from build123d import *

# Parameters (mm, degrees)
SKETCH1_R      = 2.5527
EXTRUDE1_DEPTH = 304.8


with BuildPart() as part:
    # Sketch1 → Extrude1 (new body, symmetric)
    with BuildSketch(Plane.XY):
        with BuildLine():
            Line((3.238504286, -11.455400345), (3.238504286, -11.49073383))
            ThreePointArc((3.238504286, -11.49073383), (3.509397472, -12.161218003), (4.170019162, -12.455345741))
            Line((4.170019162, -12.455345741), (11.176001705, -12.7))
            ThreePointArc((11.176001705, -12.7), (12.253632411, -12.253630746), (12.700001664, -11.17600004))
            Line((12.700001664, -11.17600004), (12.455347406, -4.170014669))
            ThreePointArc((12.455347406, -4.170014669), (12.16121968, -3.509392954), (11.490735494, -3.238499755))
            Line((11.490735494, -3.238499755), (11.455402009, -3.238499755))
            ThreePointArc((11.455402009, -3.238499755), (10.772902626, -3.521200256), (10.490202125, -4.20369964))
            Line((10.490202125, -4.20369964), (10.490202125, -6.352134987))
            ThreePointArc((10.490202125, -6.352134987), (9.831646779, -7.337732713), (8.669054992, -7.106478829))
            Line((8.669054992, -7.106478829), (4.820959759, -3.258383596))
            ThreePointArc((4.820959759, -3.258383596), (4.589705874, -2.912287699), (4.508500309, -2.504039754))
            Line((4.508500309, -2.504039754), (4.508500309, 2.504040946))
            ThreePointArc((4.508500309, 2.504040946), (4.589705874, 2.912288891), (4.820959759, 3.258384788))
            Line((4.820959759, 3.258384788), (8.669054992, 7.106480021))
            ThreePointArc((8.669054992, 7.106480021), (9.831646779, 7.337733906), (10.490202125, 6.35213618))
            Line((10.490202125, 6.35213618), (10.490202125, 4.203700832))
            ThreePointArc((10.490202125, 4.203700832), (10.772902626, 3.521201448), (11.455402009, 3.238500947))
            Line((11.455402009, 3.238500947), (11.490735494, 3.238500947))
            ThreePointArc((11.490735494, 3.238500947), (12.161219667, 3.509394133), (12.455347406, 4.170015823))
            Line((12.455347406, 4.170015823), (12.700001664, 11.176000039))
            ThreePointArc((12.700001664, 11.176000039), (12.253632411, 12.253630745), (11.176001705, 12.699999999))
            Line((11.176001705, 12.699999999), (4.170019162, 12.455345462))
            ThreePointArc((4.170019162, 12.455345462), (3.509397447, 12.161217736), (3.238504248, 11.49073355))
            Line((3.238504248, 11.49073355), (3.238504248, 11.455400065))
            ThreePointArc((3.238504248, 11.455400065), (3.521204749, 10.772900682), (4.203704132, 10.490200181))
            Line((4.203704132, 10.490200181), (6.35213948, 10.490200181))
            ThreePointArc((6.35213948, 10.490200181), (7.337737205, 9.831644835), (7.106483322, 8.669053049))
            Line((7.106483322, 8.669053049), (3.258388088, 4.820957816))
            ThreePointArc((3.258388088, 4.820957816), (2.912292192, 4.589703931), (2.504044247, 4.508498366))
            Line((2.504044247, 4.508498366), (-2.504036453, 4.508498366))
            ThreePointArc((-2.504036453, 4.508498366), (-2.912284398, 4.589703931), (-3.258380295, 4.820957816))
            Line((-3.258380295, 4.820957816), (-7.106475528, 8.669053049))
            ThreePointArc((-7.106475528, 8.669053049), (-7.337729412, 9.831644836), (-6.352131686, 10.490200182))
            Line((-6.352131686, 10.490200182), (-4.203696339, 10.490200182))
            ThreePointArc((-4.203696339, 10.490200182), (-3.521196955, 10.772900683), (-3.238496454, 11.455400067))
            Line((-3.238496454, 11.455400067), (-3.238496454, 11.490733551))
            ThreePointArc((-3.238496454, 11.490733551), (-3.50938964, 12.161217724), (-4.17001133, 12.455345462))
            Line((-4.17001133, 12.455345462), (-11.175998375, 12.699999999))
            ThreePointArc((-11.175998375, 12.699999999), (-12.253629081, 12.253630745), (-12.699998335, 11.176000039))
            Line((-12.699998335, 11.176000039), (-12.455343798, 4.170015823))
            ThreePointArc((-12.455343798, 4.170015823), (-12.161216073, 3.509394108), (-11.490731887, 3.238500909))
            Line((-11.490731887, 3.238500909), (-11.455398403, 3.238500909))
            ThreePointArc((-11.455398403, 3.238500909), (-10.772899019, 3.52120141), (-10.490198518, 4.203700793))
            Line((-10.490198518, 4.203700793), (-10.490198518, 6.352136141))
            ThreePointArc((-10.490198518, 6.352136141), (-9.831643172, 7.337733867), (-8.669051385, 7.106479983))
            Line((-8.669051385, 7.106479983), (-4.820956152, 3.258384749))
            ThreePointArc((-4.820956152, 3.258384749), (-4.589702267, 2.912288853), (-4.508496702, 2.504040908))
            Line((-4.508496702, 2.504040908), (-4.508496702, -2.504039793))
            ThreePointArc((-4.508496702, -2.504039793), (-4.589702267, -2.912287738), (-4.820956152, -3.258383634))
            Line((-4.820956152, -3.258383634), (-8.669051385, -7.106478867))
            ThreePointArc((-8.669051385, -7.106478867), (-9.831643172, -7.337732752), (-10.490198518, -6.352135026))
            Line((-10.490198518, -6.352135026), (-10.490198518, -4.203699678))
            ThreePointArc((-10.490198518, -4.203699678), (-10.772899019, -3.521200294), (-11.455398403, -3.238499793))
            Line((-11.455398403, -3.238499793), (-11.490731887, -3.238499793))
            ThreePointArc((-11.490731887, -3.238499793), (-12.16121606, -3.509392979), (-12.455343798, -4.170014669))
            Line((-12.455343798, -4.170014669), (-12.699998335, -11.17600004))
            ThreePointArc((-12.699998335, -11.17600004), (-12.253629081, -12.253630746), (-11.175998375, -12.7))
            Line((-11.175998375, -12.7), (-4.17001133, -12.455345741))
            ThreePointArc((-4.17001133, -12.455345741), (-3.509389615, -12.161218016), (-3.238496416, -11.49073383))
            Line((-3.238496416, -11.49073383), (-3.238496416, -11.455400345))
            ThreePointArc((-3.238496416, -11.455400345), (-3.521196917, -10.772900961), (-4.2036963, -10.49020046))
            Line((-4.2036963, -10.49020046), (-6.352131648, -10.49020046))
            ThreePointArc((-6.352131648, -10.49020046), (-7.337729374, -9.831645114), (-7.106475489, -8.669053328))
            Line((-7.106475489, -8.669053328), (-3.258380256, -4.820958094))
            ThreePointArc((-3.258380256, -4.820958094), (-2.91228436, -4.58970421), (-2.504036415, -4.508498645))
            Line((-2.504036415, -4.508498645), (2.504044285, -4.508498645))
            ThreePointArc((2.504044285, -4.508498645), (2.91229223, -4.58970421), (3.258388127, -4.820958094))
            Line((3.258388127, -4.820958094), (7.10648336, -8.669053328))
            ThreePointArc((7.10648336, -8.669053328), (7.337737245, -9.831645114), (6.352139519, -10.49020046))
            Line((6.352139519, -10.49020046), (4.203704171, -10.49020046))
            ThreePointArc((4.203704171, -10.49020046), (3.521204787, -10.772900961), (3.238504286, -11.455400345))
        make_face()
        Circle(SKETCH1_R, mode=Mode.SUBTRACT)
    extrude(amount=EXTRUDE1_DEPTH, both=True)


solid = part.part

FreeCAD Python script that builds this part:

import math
import FreeCAD as App
import Part
import Sketcher
Q = App.Units.Quantity

doc = App.newDocument("Part")
body = doc.addObject("PartDesign::Body", "Body")

sketch1 = body.newObject("Sketcher::SketchObject", "Sketch")
sketch1.AttachmentSupport = (doc.getObject("XY_Plane"), [""])
sketch1.MapMode = "FlatFace"
sketch1.addGeometry(Part.LineSegment(App.Vector(3.239, -11.455, 0), App.Vector(3.239, -11.491, 0)), False)
sketch1.addGeometry(Part.ArcOfCircle(Part.Circle(App.Vector(4.204, -11.491, 0), App.Vector(0, 0, 1), 0.965), math.radians(180), math.radians(268)), False)
sketch1.addGeometry(Part.LineSegment(App.Vector(4.17, -12.455, 0), App.Vector(11.176, -12.7, 0)), False)
sketch1.addGeometry(Part.ArcOfCircle(Part.Circle(App.Vector(11.176, -11.176, 0), App.Vector(0, 0, 1), 1.524), math.radians(-90), math.radians(0)), False)
sketch1.addGeometry(Part.LineSegment(App.Vector(12.7, -11.176, 0), App.Vector(12.455, -4.17, 0)), False)
sketch1.addGeometry(Part.ArcOfCircle(Part.Circle(App.Vector(11.491, -4.204, 0), App.Vector(0, 0, 1), 0.965), math.radians(2), math.radians(90)), False)
sketch1.addGeometry(Part.LineSegment(App.Vector(11.491, -3.238, 0), App.Vector(11.455, -3.238, 0)), False)
sketch1.addGeometry(Part.ArcOfCircle(Part.Circle(App.Vector(11.455, -4.204, 0), App.Vector(0, 0, 1), 0.965), math.radians(90), math.radians(180)), False)
sketch1.addGeometry(Part.LineSegment(App.Vector(10.49, -4.204, 0), App.Vector(10.49, -6.352, 0)), False)
sketch1.addGeometry(Part.ArcOfCircle(Part.Circle(App.Vector(9.423, -6.352, 0), App.Vector(0, 0, 1), 1.067), math.radians(-135), math.radians(0)), False)
sketch1.addGeometry(Part.LineSegment(App.Vector(8.669, -7.106, 0), App.Vector(4.821, -3.258, 0)), False)
sketch1.addGeometry(Part.ArcOfCircle(Part.Circle(App.Vector(5.575, -2.504, 0), App.Vector(0, 0, 1), 1.067), math.radians(180), math.radians(225)), False)
sketch1.addGeometry(Part.LineSegment(App.Vector(4.509, -2.504, 0), App.Vector(4.509, 2.504, 0)), False)
sketch1.addGeometry(Part.ArcOfCircle(Part.Circle(App.Vector(5.575, 2.504, 0), App.Vector(0, 0, 1), 1.067), math.radians(135), math.radians(180)), False)
sketch1.addGeometry(Part.LineSegment(App.Vector(4.821, 3.258, 0), App.Vector(8.669, 7.106, 0)), False)
sketch1.addGeometry(Part.ArcOfCircle(Part.Circle(App.Vector(9.423, 6.352, 0), App.Vector(0, 0, 1), 1.067), math.radians(0), math.radians(135)), False)
sketch1.addGeometry(Part.LineSegment(App.Vector(10.49, 6.352, 0), App.Vector(10.49, 4.204, 0)), False)
sketch1.addGeometry(Part.ArcOfCircle(Part.Circle(App.Vector(11.455, 4.204, 0), App.Vector(0, 0, 1), 0.965), math.radians(180), math.radians(270)), False)
sketch1.addGeometry(Part.LineSegment(App.Vector(11.455, 3.239, 0), App.Vector(11.491, 3.239, 0)), False)
sketch1.addGeometry(Part.ArcOfCircle(Part.Circle(App.Vector(11.491, 4.204, 0), App.Vector(0, 0, 1), 0.965), math.radians(-90), math.radians(-2)), False)
sketch1.addGeometry(Part.LineSegment(App.Vector(12.455, 4.17, 0), App.Vector(12.7, 11.176, 0)), False)
sketch1.addGeometry(Part.ArcOfCircle(Part.Circle(App.Vector(11.176, 11.176, 0), App.Vector(0, 0, 1), 1.524), math.radians(0), math.radians(90)), False)
sketch1.addGeometry(Part.LineSegment(App.Vector(11.176, 12.7, 0), App.Vector(4.17, 12.455, 0)), False)
sketch1.addGeometry(Part.ArcOfCircle(Part.Circle(App.Vector(4.204, 11.491, 0), App.Vector(0, 0, 1), 0.965), math.radians(92), math.radians(180)), False)
sketch1.addGeometry(Part.LineSegment(App.Vector(3.239, 11.491, 0), App.Vector(3.239, 11.455, 0)), False)
sketch1.addGeometry(Part.ArcOfCircle(Part.Circle(App.Vector(4.204, 11.455, 0), App.Vector(0, 0, 1), 0.965), math.radians(-180), math.radians(-90)), False)
sketch1.addGeometry(Part.LineSegment(App.Vector(4.204, 10.49, 0), App.Vector(6.352, 10.49, 0)), False)
sketch1.addGeometry(Part.ArcOfCircle(Part.Circle(App.Vector(6.352, 9.423, 0), App.Vector(0, 0, 1), 1.067), math.radians(-45), math.radians(90)), False)
sketch1.addGeometry(Part.LineSegment(App.Vector(7.106, 8.669, 0), App.Vector(3.258, 4.821, 0)), False)
sketch1.addGeometry(Part.ArcOfCircle(Part.Circle(App.Vector(2.504, 5.575, 0), App.Vector(0, 0, 1), 1.067), math.radians(-90), math.radians(-45)), False)
sketch1.addGeometry(Part.LineSegment(App.Vector(2.504, 4.508, 0), App.Vector(-2.504, 4.508, 0)), False)
sketch1.addGeometry(Part.ArcOfCircle(Part.Circle(App.Vector(-2.504, 5.575, 0), App.Vector(0, 0, 1), 1.067), math.radians(-135), math.radians(-90)), False)
sketch1.addGeometry(Part.LineSegment(App.Vector(-3.258, 4.821, 0), App.Vector(-7.106, 8.669, 0)), False)
sketch1.addGeometry(Part.ArcOfCircle(Part.Circle(App.Vector(-6.352, 9.423, 0), App.Vector(0, 0, 1), 1.067), math.radians(90), math.radians(225)), False)
sketch1.addGeometry(Part.LineSegment(App.Vector(-6.352, 10.49, 0), App.Vector(-4.204, 10.49, 0)), False)
sketch1.addGeometry(Part.ArcOfCircle(Part.Circle(App.Vector(-4.204, 11.455, 0), App.Vector(0, 0, 1), 0.965), math.radians(-90), math.radians(0)), False)
sketch1.addGeometry(Part.LineSegment(App.Vector(-3.238, 11.455, 0), App.Vector(-3.238, 11.491, 0)), False)
sketch1.addGeometry(Part.ArcOfCircle(Part.Circle(App.Vector(-4.204, 11.491, 0), App.Vector(0, 0, 1), 0.965), math.radians(0), math.radians(88)), False)
sketch1.addGeometry(Part.LineSegment(App.Vector(-4.17, 12.455, 0), App.Vector(-11.176, 12.7, 0)), False)
sketch1.addGeometry(Part.ArcOfCircle(Part.Circle(App.Vector(-11.176, 11.176, 0), App.Vector(0, 0, 1), 1.524), math.radians(90), math.radians(180)), False)
sketch1.addGeometry(Part.LineSegment(App.Vector(-12.7, 11.176, 0), App.Vector(-12.455, 4.17, 0)), False)
sketch1.addGeometry(Part.ArcOfCircle(Part.Circle(App.Vector(-11.491, 4.204, 0), App.Vector(0, 0, 1), 0.965), math.radians(-178), math.radians(-90)), False)
sketch1.addGeometry(Part.LineSegment(App.Vector(-11.491, 3.239, 0), App.Vector(-11.455, 3.239, 0)), False)
sketch1.addGeometry(Part.ArcOfCircle(Part.Circle(App.Vector(-11.455, 4.204, 0), App.Vector(0, 0, 1), 0.965), math.radians(-90), math.radians(0)), False)
sketch1.addGeometry(Part.LineSegment(App.Vector(-10.49, 4.204, 0), App.Vector(-10.49, 6.352, 0)), False)
sketch1.addGeometry(Part.ArcOfCircle(Part.Circle(App.Vector(-9.423, 6.352, 0), App.Vector(0, 0, 1), 1.067), math.radians(45), math.radians(180)), False)
sketch1.addGeometry(Part.LineSegment(App.Vector(-8.669, 7.106, 0), App.Vector(-4.821, 3.258, 0)), False)
sketch1.addGeometry(Part.ArcOfCircle(Part.Circle(App.Vector(-5.575, 2.504, 0), App.Vector(0, 0, 1), 1.067), math.radians(0), math.radians(45)), False)
sketch1.addGeometry(Part.LineSegment(App.Vector(-4.508, 2.504, 0), App.Vector(-4.508, -2.504, 0)), False)
sketch1.addGeometry(Part.ArcOfCircle(Part.Circle(App.Vector(-5.575, -2.504, 0), App.Vector(0, 0, 1), 1.067), math.radians(-45), math.radians(0)), False)
sketch1.addGeometry(Part.LineSegment(App.Vector(-4.821, -3.258, 0), App.Vector(-8.669, -7.106, 0)), False)
sketch1.addGeometry(Part.ArcOfCircle(Part.Circle(App.Vector(-9.423, -6.352, 0), App.Vector(0, 0, 1), 1.067), math.radians(180), math.radians(315)), False)
sketch1.addGeometry(Part.LineSegment(App.Vector(-10.49, -6.352, 0), App.Vector(-10.49, -4.204, 0)), False)
sketch1.addGeometry(Part.ArcOfCircle(Part.Circle(App.Vector(-11.455, -4.204, 0), App.Vector(0, 0, 1), 0.965), math.radians(0), math.radians(90)), False)
sketch1.addGeometry(Part.LineSegment(App.Vector(-11.455, -3.238, 0), App.Vector(-11.491, -3.238, 0)), False)
sketch1.addGeometry(Part.ArcOfCircle(Part.Circle(App.Vector(-11.491, -4.204, 0), App.Vector(0, 0, 1), 0.965), math.radians(90), math.radians(178)), False)
sketch1.addGeometry(Part.LineSegment(App.Vector(-12.455, -4.17, 0), App.Vector(-12.7, -11.176, 0)), False)
sketch1.addGeometry(Part.ArcOfCircle(Part.Circle(App.Vector(-11.176, -11.176, 0), App.Vector(0, 0, 1), 1.524), math.radians(-180), math.radians(-90)), False)
sketch1.addGeometry(Part.LineSegment(App.Vector(-11.176, -12.7, 0), App.Vector(-4.17, -12.455, 0)), False)
sketch1.addGeometry(Part.ArcOfCircle(Part.Circle(App.Vector(-4.204, -11.491, 0), App.Vector(0, 0, 1), 0.965), math.radians(-88), math.radians(0)), False)
sketch1.addGeometry(Part.LineSegment(App.Vector(-3.238, -11.491, 0), App.Vector(-3.238, -11.455, 0)), False)
sketch1.addGeometry(Part.ArcOfCircle(Part.Circle(App.Vector(-4.204, -11.455, 0), App.Vector(0, 0, 1), 0.965), math.radians(0), math.radians(90)), False)
sketch1.addGeometry(Part.LineSegment(App.Vector(-4.204, -10.49, 0), App.Vector(-6.352, -10.49, 0)), False)
sketch1.addGeometry(Part.ArcOfCircle(Part.Circle(App.Vector(-6.352, -9.423, 0), App.Vector(0, 0, 1), 1.067), math.radians(135), math.radians(270)), False)
sketch1.addGeometry(Part.LineSegment(App.Vector(-7.106, -8.669, 0), App.Vector(-3.258, -4.821, 0)), False)
sketch1.addGeometry(Part.ArcOfCircle(Part.Circle(App.Vector(-2.504, -5.575, 0), App.Vector(0, 0, 1), 1.067), math.radians(90), math.radians(135)), False)
sketch1.addGeometry(Part.LineSegment(App.Vector(-2.504, -4.508, 0), App.Vector(2.504, -4.508, 0)), False)
sketch1.addGeometry(Part.ArcOfCircle(Part.Circle(App.Vector(2.504, -5.575, 0), App.Vector(0, 0, 1), 1.067), math.radians(45), math.radians(90)), False)
sketch1.addGeometry(Part.LineSegment(App.Vector(3.258, -4.821, 0), App.Vector(7.106, -8.669, 0)), False)
sketch1.addGeometry(Part.ArcOfCircle(Part.Circle(App.Vector(6.352, -9.423, 0), App.Vector(0, 0, 1), 1.067), math.radians(-90), math.radians(45)), False)
sketch1.addGeometry(Part.LineSegment(App.Vector(6.352, -10.49, 0), App.Vector(4.204, -10.49, 0)), False)
sketch1.addGeometry(Part.ArcOfCircle(Part.Circle(App.Vector(4.204, -11.455, 0), App.Vector(0, 0, 1), 0.965), math.radians(90), math.radians(180)), False)
sketch1.addGeometry(Part.Circle(App.Vector(0, 0, 0), App.Vector(0, 0, 1), 2.553), False)
sketch1.addConstraint(Sketcher.Constraint("Tangent", 0, 2, 1, 1))
sketch1.addConstraint(Sketcher.Constraint("Tangent", 1, 2, 2, 1))
sketch1.addConstraint(Sketcher.Constraint("Coincident", 2, 2, 3, 1))
sketch1.addConstraint(Sketcher.Constraint("Coincident", 3, 2, 4, 1))
sketch1.addConstraint(Sketcher.Constraint("Tangent", 4, 2, 5, 1))
sketch1.addConstraint(Sketcher.Constraint("Tangent", 5, 2, 6, 1))
sketch1.addConstraint(Sketcher.Constraint("Tangent", 6, 2, 7, 1))
sketch1.addConstraint(Sketcher.Constraint("Tangent", 7, 2, 8, 1))
sketch1.addConstraint(Sketcher.Constraint("Tangent", 8, 2, 9, 2))
sketch1.addConstraint(Sketcher.Constraint("Tangent", 9, 1, 10, 1))
sketch1.addConstraint(Sketcher.Constraint("Tangent", 10, 2, 11, 2))
sketch1.addConstraint(Sketcher.Constraint("Tangent", 11, 1, 12, 1))
sketch1.addConstraint(Sketcher.Constraint("Tangent", 12, 2, 13, 2))
sketch1.addConstraint(Sketcher.Constraint("Tangent", 13, 1, 14, 1))
sketch1.addConstraint(Sketcher.Constraint("Tangent", 14, 2, 15, 2))
sketch1.addConstraint(Sketcher.Constraint("Tangent", 15, 1, 16, 1))
sketch1.addConstraint(Sketcher.Constraint("Tangent", 16, 2, 17, 1))
sketch1.addConstraint(Sketcher.Constraint("Tangent", 17, 2, 18, 1))
sketch1.addConstraint(Sketcher.Constraint("Tangent", 18, 2, 19, 1))
sketch1.addConstraint(Sketcher.Constraint("Tangent", 19, 2, 20, 1))
sketch1.addConstraint(Sketcher.Constraint("Coincident", 20, 2, 21, 1))
sketch1.addConstraint(Sketcher.Constraint("Coincident", 21, 2, 22, 1))
sketch1.addConstraint(Sketcher.Constraint("Tangent", 22, 2, 23, 1))
sketch1.addConstraint(Sketcher.Constraint("Tangent", 23, 2, 24, 1))
sketch1.addConstraint(Sketcher.Constraint("Tangent", 24, 2, 25, 1))
sketch1.addConstraint(Sketcher.Constraint("Tangent", 25, 2, 26, 1))
sketch1.addConstraint(Sketcher.Constraint("Tangent", 26, 2, 27, 2))
sketch1.addConstraint(Sketcher.Constraint("Tangent", 27, 1, 28, 1))
sketch1.addConstraint(Sketcher.Constraint("Tangent", 28, 2, 29, 2))
sketch1.addConstraint(Sketcher.Constraint("Tangent", 29, 1, 30, 1))
sketch1.addConstraint(Sketcher.Constraint("Tangent", 30, 2, 31, 2))
sketch1.addConstraint(Sketcher.Constraint("Tangent", 31, 1, 32, 1))
sketch1.addConstraint(Sketcher.Constraint("Tangent", 32, 2, 33, 2))
sketch1.addConstraint(Sketcher.Constraint("Tangent", 33, 1, 34, 1))
sketch1.addConstraint(Sketcher.Constraint("Tangent", 34, 2, 35, 1))
sketch1.addConstraint(Sketcher.Constraint("Tangent", 35, 2, 36, 1))
sketch1.addConstraint(Sketcher.Constraint("Tangent", 36, 2, 37, 1))
sketch1.addConstraint(Sketcher.Constraint("Tangent", 37, 2, 38, 1))
sketch1.addConstraint(Sketcher.Constraint("Coincident", 38, 2, 39, 1))
sketch1.addConstraint(Sketcher.Constraint("Coincident", 39, 2, 40, 1))
sketch1.addConstraint(Sketcher.Constraint("Tangent", 40, 2, 41, 1))
sketch1.addConstraint(Sketcher.Constraint("Tangent", 41, 2, 42, 1))
sketch1.addConstraint(Sketcher.Constraint("Tangent", 42, 2, 43, 1))
sketch1.addConstraint(Sketcher.Constraint("Tangent", 43, 2, 44, 1))
sketch1.addConstraint(Sketcher.Constraint("Tangent", 44, 2, 45, 2))
sketch1.addConstraint(Sketcher.Constraint("Tangent", 45, 1, 46, 1))
sketch1.addConstraint(Sketcher.Constraint("Tangent", 46, 2, 47, 2))
sketch1.addConstraint(Sketcher.Constraint("Tangent", 47, 1, 48, 1))
sketch1.addConstraint(Sketcher.Constraint("Tangent", 48, 2, 49, 2))
sketch1.addConstraint(Sketcher.Constraint("Tangent", 49, 1, 50, 1))
sketch1.addConstraint(Sketcher.Constraint("Tangent", 50, 2, 51, 2))
sketch1.addConstraint(Sketcher.Constraint("Tangent", 51, 1, 52, 1))
sketch1.addConstraint(Sketcher.Constraint("Tangent", 52, 2, 53, 1))
sketch1.addConstraint(Sketcher.Constraint("Tangent", 53, 2, 54, 1))
sketch1.addConstraint(Sketcher.Constraint("Tangent", 54, 2, 55, 1))
sketch1.addConstraint(Sketcher.Constraint("Tangent", 55, 2, 56, 1))
sketch1.addConstraint(Sketcher.Constraint("Coincident", 56, 2, 57, 1))
sketch1.addConstraint(Sketcher.Constraint("Coincident", 57, 2, 58, 1))
sketch1.addConstraint(Sketcher.Constraint("Tangent", 58, 2, 59, 1))
sketch1.addConstraint(Sketcher.Constraint("Tangent", 59, 2, 60, 1))
sketch1.addConstraint(Sketcher.Constraint("Tangent", 60, 2, 61, 1))
sketch1.addConstraint(Sketcher.Constraint("Tangent", 61, 2, 62, 1))
sketch1.addConstraint(Sketcher.Constraint("Tangent", 62, 2, 63, 2))
sketch1.addConstraint(Sketcher.Constraint("Tangent", 63, 1, 64, 1))
sketch1.addConstraint(Sketcher.Constraint("Tangent", 64, 2, 65, 2))
sketch1.addConstraint(Sketcher.Constraint("Tangent", 65, 1, 66, 1))
sketch1.addConstraint(Sketcher.Constraint("Tangent", 66, 2, 67, 2))
sketch1.addConstraint(Sketcher.Constraint("Tangent", 67, 1, 68, 1))
sketch1.addConstraint(Sketcher.Constraint("Tangent", 68, 2, 69, 2))
sketch1.addConstraint(Sketcher.Constraint("Tangent", 69, 1, 70, 1))
sketch1.addConstraint(Sketcher.Constraint("Tangent", 70, 2, 71, 1))
sketch1.addConstraint(Sketcher.Constraint("Tangent", 71, 2, 0, 1))
sketch1.addConstraint(Sketcher.Constraint("Vertical", 0))
sketch1.addConstraint(Sketcher.Constraint("Horizontal", 6))
sketch1.addConstraint(Sketcher.Constraint("Vertical", 8))
sketch1.addConstraint(Sketcher.Constraint("Vertical", 12))
sketch1.addConstraint(Sketcher.Constraint("Vertical", 16))
sketch1.addConstraint(Sketcher.Constraint("Horizontal", 18))
sketch1.addConstraint(Sketcher.Constraint("Vertical", 24))
sketch1.addConstraint(Sketcher.Constraint("Horizontal", 26))
sketch1.addConstraint(Sketcher.Constraint("Horizontal", 30))
sketch1.addConstraint(Sketcher.Constraint("Horizontal", 34))
sketch1.addConstraint(Sketcher.Constraint("Vertical", 36))
sketch1.addConstraint(Sketcher.Constraint("Horizontal", 42))
sketch1.addConstraint(Sketcher.Constraint("Vertical", 44))
sketch1.addConstraint(Sketcher.Constraint("Vertical", 48))
sketch1.addConstraint(Sketcher.Constraint("Vertical", 52))
sketch1.addConstraint(Sketcher.Constraint("Horizontal", 54))
sketch1.addConstraint(Sketcher.Constraint("Vertical", 60))
sketch1.addConstraint(Sketcher.Constraint("Horizontal", 62))
sketch1.addConstraint(Sketcher.Constraint("Horizontal", 66))
sketch1.addConstraint(Sketcher.Constraint("Horizontal", 70))
sketch1.addConstraint(Sketcher.Constraint("Coincident", 72, 3, -1, 1))
sketch1.addConstraint(Sketcher.Constraint("Equal", 1, 5))
sketch1.addConstraint(Sketcher.Constraint("Equal", 5, 7))
sketch1.addConstraint(Sketcher.Constraint("Equal", 9, 11))
sketch1.addConstraint(Sketcher.Constraint("Equal", 11, 13))
sketch1.addConstraint(Sketcher.Constraint("Equal", 13, 15))
sketch1.addConstraint(Sketcher.Constraint("Equal", 7, 17))
sketch1.addConstraint(Sketcher.Constraint("Equal", 17, 19))
sketch1.addConstraint(Sketcher.Constraint("Equal", 3, 21))
sketch1.addConstraint(Sketcher.Constraint("Equal", 19, 23))
sketch1.addConstraint(Sketcher.Constraint("Equal", 23, 25))
sketch1.addConstraint(Sketcher.Constraint("Equal", 15, 27))
sketch1.addConstraint(Sketcher.Constraint("Equal", 27, 29))
sketch1.addConstraint(Sketcher.Constraint("Equal", 29, 31))
sketch1.addConstraint(Sketcher.Constraint("Equal", 31, 33))
sketch1.addConstraint(Sketcher.Constraint("Equal", 25, 35))
sketch1.addConstraint(Sketcher.Constraint("Equal", 35, 37))
sketch1.addConstraint(Sketcher.Constraint("Equal", 21, 39))
sketch1.addConstraint(Sketcher.Constraint("Equal", 37, 41))
sketch1.addConstraint(Sketcher.Constraint("Equal", 41, 43))
sketch1.addConstraint(Sketcher.Constraint("Equal", 33, 45))
sketch1.addConstraint(Sketcher.Constraint("Equal", 45, 47))
sketch1.addConstraint(Sketcher.Constraint("Equal", 47, 49))
sketch1.addConstraint(Sketcher.Constraint("Equal", 49, 51))
sketch1.addConstraint(Sketcher.Constraint("Equal", 43, 53))
sketch1.addConstraint(Sketcher.Constraint("Equal", 53, 55))
sketch1.addConstraint(Sketcher.Constraint("Equal", 39, 57))
sketch1.addConstraint(Sketcher.Constraint("Equal", 55, 59))
sketch1.addConstraint(Sketcher.Constraint("Equal", 59, 61))
sketch1.addConstraint(Sketcher.Constraint("Equal", 51, 63))
sketch1.addConstraint(Sketcher.Constraint("Equal", 63, 65))
sketch1.addConstraint(Sketcher.Constraint("Equal", 65, 67))
sketch1.addConstraint(Sketcher.Constraint("Equal", 67, 69))
sketch1.addConstraint(Sketcher.Constraint("Equal", 61, 71))
sketch1.addConstraint(Sketcher.Constraint("Symmetric", 1, 3, 37, 3, -1, 1))
sketch1.addConstraint(Sketcher.Constraint("Symmetric", 3, 3, 39, 3, -1, 1))
sketch1.addConstraint(Sketcher.Constraint("Symmetric", 5, 3, 41, 3, -1, 1))
sketch1.addConstraint(Sketcher.Constraint("Symmetric", 9, 3, 45, 3, -1, 1))
sketch1.addConstraint(Sketcher.Constraint("Symmetric", 11, 3, 47, 3, -1, 1))
sketch1.addConstraint(Sketcher.Constraint("Symmetric", 15, 3, 51, 3, -1, 1))
sketch1.addConstraint(Sketcher.Constraint("Symmetric", 19, 3, 55, 3, -1, 1))
sketch1.addConstraint(Sketcher.Constraint("Symmetric", 21, 3, 57, 3, -1, 1))
sketch1.addConstraint(Sketcher.Constraint("Symmetric", 23, 3, 59, 3, -1, 1))
sketch1.addConstraint(Sketcher.Constraint("Symmetric", 27, 3, 63, 3, -1, 1))
sketch1.addConstraint(Sketcher.Constraint("Symmetric", 29, 3, 65, 3, -1, 1))
sketch1.addConstraint(Sketcher.Constraint("Symmetric", 33, 3, 69, 3, -1, 1))
sketch1.addConstraint(Sketcher.Constraint("Symmetric", 27, 3, 33, 3, -2))
sketch1.addConstraint(Sketcher.Constraint("Symmetric", 23, 3, 37, 3, -2))
sketch1.addConstraint(Sketcher.Constraint("Symmetric", 21, 3, 39, 3, -2))
sketch1.addConstraint(Sketcher.Constraint("Symmetric", 19, 3, 41, 3, -2))
sketch1.addConstraint(Sketcher.Constraint("Symmetric", 15, 3, 45, 3, -2))
sketch1.addConstraint(Sketcher.Constraint("Perpendicular", 10, 14))
sketch1.addConstraint(Sketcher.Constraint("Perpendicular", 2, 20))
sketch1.addConstraint(Sketcher.Constraint("Perpendicular", 4, 22))
sketch1.addConstraint(Sketcher.Constraint("Parallel", 14, 28))
sketch1.addConstraint(Sketcher.Constraint("Perpendicular", 28, 32))
sketch1.addConstraint(Sketcher.Constraint("Perpendicular", 20, 38))
sketch1.addConstraint(Sketcher.Constraint("Perpendicular", 22, 40))
sketch1.addConstraint(Sketcher.Constraint("Perpendicular", 46, 50))
sketch1.addConstraint(Sketcher.Constraint("Perpendicular", 38, 56))
sketch1.addConstraint(Sketcher.Constraint("Perpendicular", 40, 58))
sketch1.addConstraint(Sketcher.Constraint("Perpendicular", 64, 68))
sketch1.addConstraint(Sketcher.Constraint("Horizontal", 13, 3, 47, 3))
sketch1.addConstraint(Sketcher.Constraint("Horizontal", 57, 3, 3, 2))
sketch1.addConstraint(Sketcher.Constraint("Horizontal", 39, 3, 20, 2))
sketch1.addConstraint(Sketcher.Constraint("Vertical", 21, 3, 2, 2))
sketch1.addConstraint(Sketcher.Constraint("Equal", 54, 0))
sketch1.addConstraint(Sketcher.Constraint("Equal", 70, 8))
sketch1.addConstraint(Sketcher.Constraint("Equal", 66, 12))
sketch1.addConstraint(Sketcher.Constraint("Equal", 2, 20))
sketch1.addConstraint(Sketcher.Constraint("Equal", 14, 28))
sketch1.addConstraint(Sketcher.Constraint("Radius", 3, Q("0.06 in")))
sketch1.addConstraint(Sketcher.Constraint("Diameter", 72, Q("0.201 in")))
sketch1.addConstraint(Sketcher.Constraint("Angle", 2, Q("-2 deg")))
sketch1.addConstraint(Sketcher.Constraint("Radius", 1, Q("0.038 in")))
sketch1.addConstraint(Sketcher.Constraint("Radius", 9, Q("0.0420001 in")))
sketch1.addConstraint(Sketcher.Constraint("DistanceY", 2, 2, -1, 1, Q("0.5 in")))
sketch1.addConstraint(Sketcher.Constraint("DistanceX", -1, 1, 7, 3, Q("0.4510001 in")))
sketch1.addConstraint(Sketcher.Constraint("DistanceX", -1, 1, 1, 3, Q("0.1655002 in")))
sketch1.addConstraint(Sketcher.Constraint("DistanceX", -1, 1, 11, 3, Q("0.2195001 in")))
sketch1.addConstraint(Sketcher.Constraint("DistanceX", 30, 2, 30, 1, Q("5.008081 mm")))
pad1 = body.newObject("PartDesign::Pad", "Pad")
pad1.Profile = sketch1
pad1.Length = Q("24 in")
pad1.Midplane = True

doc.recompute()
